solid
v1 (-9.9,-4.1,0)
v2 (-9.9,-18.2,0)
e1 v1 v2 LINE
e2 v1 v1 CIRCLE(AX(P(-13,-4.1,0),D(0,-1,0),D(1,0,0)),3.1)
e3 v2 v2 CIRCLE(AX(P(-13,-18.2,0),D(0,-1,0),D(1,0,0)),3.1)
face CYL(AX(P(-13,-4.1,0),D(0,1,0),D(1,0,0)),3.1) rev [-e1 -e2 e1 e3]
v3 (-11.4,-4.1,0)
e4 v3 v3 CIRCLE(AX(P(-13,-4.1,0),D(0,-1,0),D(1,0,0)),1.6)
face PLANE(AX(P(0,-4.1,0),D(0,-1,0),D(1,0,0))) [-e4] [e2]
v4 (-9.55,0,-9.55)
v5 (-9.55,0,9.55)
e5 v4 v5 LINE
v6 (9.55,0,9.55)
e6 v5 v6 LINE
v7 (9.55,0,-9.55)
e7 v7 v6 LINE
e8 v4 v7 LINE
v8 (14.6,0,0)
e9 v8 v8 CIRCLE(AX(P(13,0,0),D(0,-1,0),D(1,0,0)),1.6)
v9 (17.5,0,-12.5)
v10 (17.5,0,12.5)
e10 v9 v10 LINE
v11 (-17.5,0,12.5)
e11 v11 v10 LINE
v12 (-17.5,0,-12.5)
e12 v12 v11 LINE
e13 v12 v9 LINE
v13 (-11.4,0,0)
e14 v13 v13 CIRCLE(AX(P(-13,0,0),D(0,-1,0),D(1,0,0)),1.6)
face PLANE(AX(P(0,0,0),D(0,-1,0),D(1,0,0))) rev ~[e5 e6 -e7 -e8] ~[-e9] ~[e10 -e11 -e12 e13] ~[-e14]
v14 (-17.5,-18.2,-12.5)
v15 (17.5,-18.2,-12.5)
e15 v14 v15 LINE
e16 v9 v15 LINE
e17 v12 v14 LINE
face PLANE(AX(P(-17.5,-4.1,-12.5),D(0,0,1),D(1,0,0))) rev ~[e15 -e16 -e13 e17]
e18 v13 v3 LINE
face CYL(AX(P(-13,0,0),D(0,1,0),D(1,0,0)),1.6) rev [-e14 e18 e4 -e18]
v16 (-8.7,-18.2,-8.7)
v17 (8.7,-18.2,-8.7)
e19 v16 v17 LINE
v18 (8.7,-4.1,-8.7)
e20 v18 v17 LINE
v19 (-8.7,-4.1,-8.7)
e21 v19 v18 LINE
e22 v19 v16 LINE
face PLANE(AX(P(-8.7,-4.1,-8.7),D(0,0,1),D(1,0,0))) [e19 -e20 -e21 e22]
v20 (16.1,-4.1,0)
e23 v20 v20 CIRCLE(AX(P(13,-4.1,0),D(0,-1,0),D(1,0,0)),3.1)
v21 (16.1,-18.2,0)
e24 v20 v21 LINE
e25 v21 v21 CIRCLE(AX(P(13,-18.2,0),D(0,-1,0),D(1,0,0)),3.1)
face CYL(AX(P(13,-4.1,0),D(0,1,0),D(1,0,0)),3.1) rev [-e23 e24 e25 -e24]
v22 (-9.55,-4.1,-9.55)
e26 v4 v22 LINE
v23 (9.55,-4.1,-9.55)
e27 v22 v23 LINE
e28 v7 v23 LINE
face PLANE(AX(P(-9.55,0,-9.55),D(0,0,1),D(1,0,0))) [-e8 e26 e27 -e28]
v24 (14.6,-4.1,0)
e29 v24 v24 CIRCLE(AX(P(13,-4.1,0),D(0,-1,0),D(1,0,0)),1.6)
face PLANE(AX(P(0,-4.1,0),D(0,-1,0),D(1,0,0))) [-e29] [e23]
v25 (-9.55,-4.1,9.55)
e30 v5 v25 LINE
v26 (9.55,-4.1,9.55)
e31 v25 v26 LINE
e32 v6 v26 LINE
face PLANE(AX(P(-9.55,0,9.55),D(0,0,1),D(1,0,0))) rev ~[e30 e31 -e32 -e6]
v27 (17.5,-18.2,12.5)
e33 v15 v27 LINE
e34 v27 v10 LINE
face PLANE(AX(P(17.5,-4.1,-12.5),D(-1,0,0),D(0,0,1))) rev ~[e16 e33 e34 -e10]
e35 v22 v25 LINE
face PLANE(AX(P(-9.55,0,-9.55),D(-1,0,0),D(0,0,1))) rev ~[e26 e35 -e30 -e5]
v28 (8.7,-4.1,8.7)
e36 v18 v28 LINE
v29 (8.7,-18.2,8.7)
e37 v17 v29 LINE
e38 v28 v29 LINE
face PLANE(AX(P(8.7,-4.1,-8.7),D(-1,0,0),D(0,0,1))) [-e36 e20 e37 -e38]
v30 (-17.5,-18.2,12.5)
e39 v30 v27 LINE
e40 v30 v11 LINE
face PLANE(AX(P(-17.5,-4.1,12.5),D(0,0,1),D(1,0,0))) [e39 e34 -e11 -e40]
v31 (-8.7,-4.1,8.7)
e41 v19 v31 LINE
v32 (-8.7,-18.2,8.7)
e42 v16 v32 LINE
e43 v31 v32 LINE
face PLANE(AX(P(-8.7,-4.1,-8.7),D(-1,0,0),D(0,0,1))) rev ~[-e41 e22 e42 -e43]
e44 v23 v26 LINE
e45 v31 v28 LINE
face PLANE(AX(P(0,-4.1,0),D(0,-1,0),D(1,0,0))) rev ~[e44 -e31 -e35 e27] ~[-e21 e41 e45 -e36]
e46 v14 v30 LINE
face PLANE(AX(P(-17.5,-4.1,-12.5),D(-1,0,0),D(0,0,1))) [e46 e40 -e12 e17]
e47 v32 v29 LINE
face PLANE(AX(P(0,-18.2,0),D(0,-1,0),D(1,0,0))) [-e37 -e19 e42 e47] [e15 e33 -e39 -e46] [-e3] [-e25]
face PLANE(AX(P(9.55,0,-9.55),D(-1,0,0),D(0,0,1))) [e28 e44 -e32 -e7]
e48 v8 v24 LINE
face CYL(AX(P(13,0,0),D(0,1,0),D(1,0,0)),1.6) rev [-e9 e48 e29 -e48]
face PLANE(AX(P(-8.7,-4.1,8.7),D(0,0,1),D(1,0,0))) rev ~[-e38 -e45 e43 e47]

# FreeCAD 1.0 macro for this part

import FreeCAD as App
import Part
import Sketcher
from FreeCAD import Vector

doc = App.newDocument("Part")
params = doc.addObject("Spreadsheet::Sheet", "Params")
for row, (alias, value) in enumerate([
    ("sketch1_diameter", "3.2 mm"),
    ("sketch1_width", "35 mm"),
    ("sketch1_height", "25 mm"),
    ("sketch1_width2", "19.1 mm"),
    ("pad1_length", "4.1 mm"),
    ("sketch2_diameter", "6.2 mm"),
    ("sketch2_width", "35 mm"),
    ("sketch2_height", "25 mm"),
    ("sketch2_width2", "17.4 mm"),
    ("pad2_length", "14.1 mm"),
], start=1):
    params.set(f"A{row}", alias)
    params.set(f"B{row}", "=" + value)
    params.setAlias(f"B{row}", alias)

body = doc.addObject("PartDesign::Body", "Body")

# Sketch on XZ plane
sketch1 = body.newObject("Sketcher::SketchObject", "Sketch")
sketch1.AttachmentSupport = (doc.getObject("XZ_Plane"), [""])
sketch1.MapMode = "FlatFace"
sketch1.addGeometry([
    Part.LineSegment(Vector(-17.5, 12.5, 0), Vector(-17.5, -12.5, 0)),  # 0
    Part.LineSegment(Vector(-17.5, -12.5, 0), Vector(17.5, -12.5, 0)),  # 1
    Part.LineSegment(Vector(17.5, -12.5, 0), Vector(17.5, 12.5, 0)),  # 2
    Part.LineSegment(Vector(17.5, 12.5, 0), Vector(-17.5, 12.5, 0)),  # 3
    Part.Circle(Vector(-13, 0, 0), Vector(0, 0, 1), 1.6),  # 4
    Part.LineSegment(Vector(9.6, -9.6, 0), Vector(-9.6, -9.6, 0)),  # 5
    Part.LineSegment(Vector(-9.6, -9.6, 0), Vector(-9.6, 9.6, 0)),  # 6
    Part.LineSegment(Vector(-9.6, 9.6, 0), Vector(9.6, 9.6, 0)),  # 7
    Part.LineSegment(Vector(9.6, 9.6, 0), Vector(9.6, -9.6, 0)),  # 8
    Part.Circle(Vector(13, 0, 0), Vector(0, 0, 1), 1.6),  # 9
], False)
sketch1.addConstraint([
    Sketcher.Constraint("Coincident", 0, 2, 1, 1),
    Sketcher.Constraint("Coincident", 1, 2, 2, 1),
    Sketcher.Constraint("Coincident", 2, 2, 3, 1),
    Sketcher.Constraint("Coincident", 3, 2, 0, 1),
    Sketcher.Constraint("Coincident", 5, 2, 6, 1),
    Sketcher.Constraint("Coincident", 6, 2, 7, 1),
    Sketcher.Constraint("Coincident", 7, 2, 8, 1),
    Sketcher.Constraint("Coincident", 8, 2, 5, 1),
    Sketcher.Constraint("Vertical", 0),
    Sketcher.Constraint("Horizontal", 1),
    Sketcher.Constraint("Vertical", 2),
    Sketcher.Constraint("Horizontal", 3),
    Sketcher.Constraint("Horizontal", 5),
    Sketcher.Constraint("Vertical", 6),
    Sketcher.Constraint("Horizontal", 7),
    Sketcher.Constraint("Vertical", 8),
    Sketcher.Constraint("Equal", 4, 9),
    Sketcher.Constraint("Symmetric", 4, 3, 9, 3, -1, 1),
    Sketcher.Constraint("Symmetric", 0, 2, 2, 2, -1, 1),
    Sketcher.Constraint("Symmetric", 5, 2, 7, 2, -1, 1),
    Sketcher.Constraint("PointOnObject", 4, 3, -1),
    Sketcher.Constraint("Equal", 7, 6),
    Sketcher.Constraint("Diameter", 4, 3.2),
    Sketcher.Constraint("DistanceX", 1, 1, 1, 2, 35.0),
    Sketcher.Constraint("DistanceY", 0, 2, 0, 1, 25.0),
    Sketcher.Constraint("DistanceX", 5, 2, 5, 1, 19.1),
    Sketcher.Constraint("DistanceX", 4, 3, -1, 1, 13.0),
])
sketch1.setExpression("Constraints[22]", "Params.sketch1_diameter")
sketch1.setExpression("Constraints[23]", "Params.sketch1_width")
sketch1.setExpression("Constraints[24]", "Params.sketch1_height")
sketch1.setExpression("Constraints[25]", "Params.sketch1_width2")
pad1 = body.newObject("PartDesign::Pad", "Pad")
pad1.Profile = sketch1
pad1.setExpression("Length", "Params.pad1_length")

# Sketch on XZ plane
sketch2 = body.newObject("Sketcher::SketchObject", "Sketch001")
sketch2.AttachmentSupport = (doc.getObject("XZ_Plane"), [""])
sketch2.MapMode = "FlatFace"
sketch2.AttachmentOffset = App.Placement(Vector(0, 0, 4.1), App.Rotation())
sketch2.addGeometry([
    Part.LineSegment(Vector(-17.5, 12.5, 0), Vector(-17.5, -12.5, 0)),  # 0
    Part.LineSegment(Vector(-17.5, -12.5, 0), Vector(17.5, -12.5, 0)),  # 1
    Part.LineSegment(Vector(17.5, -12.5, 0), Vector(17.5, 12.5, 0)),  # 2
    Part.LineSegment(Vector(17.5, 12.5, 0), Vector(-17.5, 12.5, 0)),  # 3
    Part.Circle(Vector(-13, 0, 0), Vector(0, 0, 1), 3.1),  # 4
    Part.LineSegment(Vector(8.7, -8.7, 0), Vector(-8.7, -8.7, 0)),  # 5
    Part.LineSegment(Vector(-8.7, -8.7, 0), Vector(-8.7, 8.7, 0)),  # 6
    Part.LineSegment(Vector(-8.7, 8.7, 0), Vector(8.7, 8.7, 0)),  # 7
    Part.LineSegment(Vector(8.7, 8.7, 0), Vector(8.7, -8.7, 0)),  # 8
    Part.Circle(Vector(13, 0, 0), Vector(0, 0, 1), 3.1),  # 9
], False)
sketch2.addConstraint([
    Sketcher.Constraint("Coincident", 0, 2, 1, 1),
    Sketcher.Constraint("Coincident", 1, 2, 2, 1),
    Sketcher.Constraint("Coincident", 2, 2, 3, 1),
    Sketcher.Constraint("Coincident", 3, 2, 0, 1),
    Sketcher.Constraint("Coincident", 5, 2, 6, 1),
    Sketcher.Constraint("Coincident", 6, 2, 7, 1),
    Sketcher.Constraint("Coincident", 7, 2, 8, 1),
    Sketcher.Constraint("Coincident", 8, 2, 5, 1),
    Sketcher.Constraint("Vertical", 0),
    Sketcher.Constraint("Horizontal", 1),
    Sketcher.Constraint("Vertical", 2),
    Sketcher.Constraint("Horizontal", 3),
    Sketcher.Constraint("Horizontal", 5),
    Sketcher.Constraint("Vertical", 6),
    Sketcher.Constraint("Horizontal", 7),
    Sketcher.Constraint("Vertical", 8),
    Sketcher.Constraint("Equal", 4, 9),
    Sketcher.Constraint("Symmetric", 4, 3, 9, 3, -1, 1),
    Sketcher.Constraint("Symmetric", 0, 2, 2, 2, -1, 1),
    Sketcher.Constraint("Symmetric", 5, 2, 7, 2, -1, 1),
    Sketcher.Constraint("PointOnObject", 4, 3, -1),
    Sketcher.Constraint("Equal", 7, 6),
    Sketcher.Constraint("Diameter", 4, 6.2),
    Sketcher.Constraint("DistanceX", 1, 1, 1, 2, 35.0),
    Sketcher.Constraint("DistanceY", 0, 2, 0, 1, 25.0),
    Sketcher.Constraint("DistanceX", 5, 2, 5, 1, 17.4),
    Sketcher.Constraint("DistanceX", 4, 3, -1, 1, 13.0),
])
sketch2.setExpression("Constraints[22]", "Params.sketch2_diameter")
sketch2.setExpression("Constraints[23]", "Params.sketch2_width")
sketch2.setExpression("Constraints[24]", "Params.sketch2_height")
sketch2.setExpression("Constraints[25]", "Params.sketch2_width2")
pad2 = body.newObject("PartDesign::Pad", "Pad001")
pad2.Profile = sketch2
pad2.setExpression("Length", "Params.pad2_length")

doc.recompute()
